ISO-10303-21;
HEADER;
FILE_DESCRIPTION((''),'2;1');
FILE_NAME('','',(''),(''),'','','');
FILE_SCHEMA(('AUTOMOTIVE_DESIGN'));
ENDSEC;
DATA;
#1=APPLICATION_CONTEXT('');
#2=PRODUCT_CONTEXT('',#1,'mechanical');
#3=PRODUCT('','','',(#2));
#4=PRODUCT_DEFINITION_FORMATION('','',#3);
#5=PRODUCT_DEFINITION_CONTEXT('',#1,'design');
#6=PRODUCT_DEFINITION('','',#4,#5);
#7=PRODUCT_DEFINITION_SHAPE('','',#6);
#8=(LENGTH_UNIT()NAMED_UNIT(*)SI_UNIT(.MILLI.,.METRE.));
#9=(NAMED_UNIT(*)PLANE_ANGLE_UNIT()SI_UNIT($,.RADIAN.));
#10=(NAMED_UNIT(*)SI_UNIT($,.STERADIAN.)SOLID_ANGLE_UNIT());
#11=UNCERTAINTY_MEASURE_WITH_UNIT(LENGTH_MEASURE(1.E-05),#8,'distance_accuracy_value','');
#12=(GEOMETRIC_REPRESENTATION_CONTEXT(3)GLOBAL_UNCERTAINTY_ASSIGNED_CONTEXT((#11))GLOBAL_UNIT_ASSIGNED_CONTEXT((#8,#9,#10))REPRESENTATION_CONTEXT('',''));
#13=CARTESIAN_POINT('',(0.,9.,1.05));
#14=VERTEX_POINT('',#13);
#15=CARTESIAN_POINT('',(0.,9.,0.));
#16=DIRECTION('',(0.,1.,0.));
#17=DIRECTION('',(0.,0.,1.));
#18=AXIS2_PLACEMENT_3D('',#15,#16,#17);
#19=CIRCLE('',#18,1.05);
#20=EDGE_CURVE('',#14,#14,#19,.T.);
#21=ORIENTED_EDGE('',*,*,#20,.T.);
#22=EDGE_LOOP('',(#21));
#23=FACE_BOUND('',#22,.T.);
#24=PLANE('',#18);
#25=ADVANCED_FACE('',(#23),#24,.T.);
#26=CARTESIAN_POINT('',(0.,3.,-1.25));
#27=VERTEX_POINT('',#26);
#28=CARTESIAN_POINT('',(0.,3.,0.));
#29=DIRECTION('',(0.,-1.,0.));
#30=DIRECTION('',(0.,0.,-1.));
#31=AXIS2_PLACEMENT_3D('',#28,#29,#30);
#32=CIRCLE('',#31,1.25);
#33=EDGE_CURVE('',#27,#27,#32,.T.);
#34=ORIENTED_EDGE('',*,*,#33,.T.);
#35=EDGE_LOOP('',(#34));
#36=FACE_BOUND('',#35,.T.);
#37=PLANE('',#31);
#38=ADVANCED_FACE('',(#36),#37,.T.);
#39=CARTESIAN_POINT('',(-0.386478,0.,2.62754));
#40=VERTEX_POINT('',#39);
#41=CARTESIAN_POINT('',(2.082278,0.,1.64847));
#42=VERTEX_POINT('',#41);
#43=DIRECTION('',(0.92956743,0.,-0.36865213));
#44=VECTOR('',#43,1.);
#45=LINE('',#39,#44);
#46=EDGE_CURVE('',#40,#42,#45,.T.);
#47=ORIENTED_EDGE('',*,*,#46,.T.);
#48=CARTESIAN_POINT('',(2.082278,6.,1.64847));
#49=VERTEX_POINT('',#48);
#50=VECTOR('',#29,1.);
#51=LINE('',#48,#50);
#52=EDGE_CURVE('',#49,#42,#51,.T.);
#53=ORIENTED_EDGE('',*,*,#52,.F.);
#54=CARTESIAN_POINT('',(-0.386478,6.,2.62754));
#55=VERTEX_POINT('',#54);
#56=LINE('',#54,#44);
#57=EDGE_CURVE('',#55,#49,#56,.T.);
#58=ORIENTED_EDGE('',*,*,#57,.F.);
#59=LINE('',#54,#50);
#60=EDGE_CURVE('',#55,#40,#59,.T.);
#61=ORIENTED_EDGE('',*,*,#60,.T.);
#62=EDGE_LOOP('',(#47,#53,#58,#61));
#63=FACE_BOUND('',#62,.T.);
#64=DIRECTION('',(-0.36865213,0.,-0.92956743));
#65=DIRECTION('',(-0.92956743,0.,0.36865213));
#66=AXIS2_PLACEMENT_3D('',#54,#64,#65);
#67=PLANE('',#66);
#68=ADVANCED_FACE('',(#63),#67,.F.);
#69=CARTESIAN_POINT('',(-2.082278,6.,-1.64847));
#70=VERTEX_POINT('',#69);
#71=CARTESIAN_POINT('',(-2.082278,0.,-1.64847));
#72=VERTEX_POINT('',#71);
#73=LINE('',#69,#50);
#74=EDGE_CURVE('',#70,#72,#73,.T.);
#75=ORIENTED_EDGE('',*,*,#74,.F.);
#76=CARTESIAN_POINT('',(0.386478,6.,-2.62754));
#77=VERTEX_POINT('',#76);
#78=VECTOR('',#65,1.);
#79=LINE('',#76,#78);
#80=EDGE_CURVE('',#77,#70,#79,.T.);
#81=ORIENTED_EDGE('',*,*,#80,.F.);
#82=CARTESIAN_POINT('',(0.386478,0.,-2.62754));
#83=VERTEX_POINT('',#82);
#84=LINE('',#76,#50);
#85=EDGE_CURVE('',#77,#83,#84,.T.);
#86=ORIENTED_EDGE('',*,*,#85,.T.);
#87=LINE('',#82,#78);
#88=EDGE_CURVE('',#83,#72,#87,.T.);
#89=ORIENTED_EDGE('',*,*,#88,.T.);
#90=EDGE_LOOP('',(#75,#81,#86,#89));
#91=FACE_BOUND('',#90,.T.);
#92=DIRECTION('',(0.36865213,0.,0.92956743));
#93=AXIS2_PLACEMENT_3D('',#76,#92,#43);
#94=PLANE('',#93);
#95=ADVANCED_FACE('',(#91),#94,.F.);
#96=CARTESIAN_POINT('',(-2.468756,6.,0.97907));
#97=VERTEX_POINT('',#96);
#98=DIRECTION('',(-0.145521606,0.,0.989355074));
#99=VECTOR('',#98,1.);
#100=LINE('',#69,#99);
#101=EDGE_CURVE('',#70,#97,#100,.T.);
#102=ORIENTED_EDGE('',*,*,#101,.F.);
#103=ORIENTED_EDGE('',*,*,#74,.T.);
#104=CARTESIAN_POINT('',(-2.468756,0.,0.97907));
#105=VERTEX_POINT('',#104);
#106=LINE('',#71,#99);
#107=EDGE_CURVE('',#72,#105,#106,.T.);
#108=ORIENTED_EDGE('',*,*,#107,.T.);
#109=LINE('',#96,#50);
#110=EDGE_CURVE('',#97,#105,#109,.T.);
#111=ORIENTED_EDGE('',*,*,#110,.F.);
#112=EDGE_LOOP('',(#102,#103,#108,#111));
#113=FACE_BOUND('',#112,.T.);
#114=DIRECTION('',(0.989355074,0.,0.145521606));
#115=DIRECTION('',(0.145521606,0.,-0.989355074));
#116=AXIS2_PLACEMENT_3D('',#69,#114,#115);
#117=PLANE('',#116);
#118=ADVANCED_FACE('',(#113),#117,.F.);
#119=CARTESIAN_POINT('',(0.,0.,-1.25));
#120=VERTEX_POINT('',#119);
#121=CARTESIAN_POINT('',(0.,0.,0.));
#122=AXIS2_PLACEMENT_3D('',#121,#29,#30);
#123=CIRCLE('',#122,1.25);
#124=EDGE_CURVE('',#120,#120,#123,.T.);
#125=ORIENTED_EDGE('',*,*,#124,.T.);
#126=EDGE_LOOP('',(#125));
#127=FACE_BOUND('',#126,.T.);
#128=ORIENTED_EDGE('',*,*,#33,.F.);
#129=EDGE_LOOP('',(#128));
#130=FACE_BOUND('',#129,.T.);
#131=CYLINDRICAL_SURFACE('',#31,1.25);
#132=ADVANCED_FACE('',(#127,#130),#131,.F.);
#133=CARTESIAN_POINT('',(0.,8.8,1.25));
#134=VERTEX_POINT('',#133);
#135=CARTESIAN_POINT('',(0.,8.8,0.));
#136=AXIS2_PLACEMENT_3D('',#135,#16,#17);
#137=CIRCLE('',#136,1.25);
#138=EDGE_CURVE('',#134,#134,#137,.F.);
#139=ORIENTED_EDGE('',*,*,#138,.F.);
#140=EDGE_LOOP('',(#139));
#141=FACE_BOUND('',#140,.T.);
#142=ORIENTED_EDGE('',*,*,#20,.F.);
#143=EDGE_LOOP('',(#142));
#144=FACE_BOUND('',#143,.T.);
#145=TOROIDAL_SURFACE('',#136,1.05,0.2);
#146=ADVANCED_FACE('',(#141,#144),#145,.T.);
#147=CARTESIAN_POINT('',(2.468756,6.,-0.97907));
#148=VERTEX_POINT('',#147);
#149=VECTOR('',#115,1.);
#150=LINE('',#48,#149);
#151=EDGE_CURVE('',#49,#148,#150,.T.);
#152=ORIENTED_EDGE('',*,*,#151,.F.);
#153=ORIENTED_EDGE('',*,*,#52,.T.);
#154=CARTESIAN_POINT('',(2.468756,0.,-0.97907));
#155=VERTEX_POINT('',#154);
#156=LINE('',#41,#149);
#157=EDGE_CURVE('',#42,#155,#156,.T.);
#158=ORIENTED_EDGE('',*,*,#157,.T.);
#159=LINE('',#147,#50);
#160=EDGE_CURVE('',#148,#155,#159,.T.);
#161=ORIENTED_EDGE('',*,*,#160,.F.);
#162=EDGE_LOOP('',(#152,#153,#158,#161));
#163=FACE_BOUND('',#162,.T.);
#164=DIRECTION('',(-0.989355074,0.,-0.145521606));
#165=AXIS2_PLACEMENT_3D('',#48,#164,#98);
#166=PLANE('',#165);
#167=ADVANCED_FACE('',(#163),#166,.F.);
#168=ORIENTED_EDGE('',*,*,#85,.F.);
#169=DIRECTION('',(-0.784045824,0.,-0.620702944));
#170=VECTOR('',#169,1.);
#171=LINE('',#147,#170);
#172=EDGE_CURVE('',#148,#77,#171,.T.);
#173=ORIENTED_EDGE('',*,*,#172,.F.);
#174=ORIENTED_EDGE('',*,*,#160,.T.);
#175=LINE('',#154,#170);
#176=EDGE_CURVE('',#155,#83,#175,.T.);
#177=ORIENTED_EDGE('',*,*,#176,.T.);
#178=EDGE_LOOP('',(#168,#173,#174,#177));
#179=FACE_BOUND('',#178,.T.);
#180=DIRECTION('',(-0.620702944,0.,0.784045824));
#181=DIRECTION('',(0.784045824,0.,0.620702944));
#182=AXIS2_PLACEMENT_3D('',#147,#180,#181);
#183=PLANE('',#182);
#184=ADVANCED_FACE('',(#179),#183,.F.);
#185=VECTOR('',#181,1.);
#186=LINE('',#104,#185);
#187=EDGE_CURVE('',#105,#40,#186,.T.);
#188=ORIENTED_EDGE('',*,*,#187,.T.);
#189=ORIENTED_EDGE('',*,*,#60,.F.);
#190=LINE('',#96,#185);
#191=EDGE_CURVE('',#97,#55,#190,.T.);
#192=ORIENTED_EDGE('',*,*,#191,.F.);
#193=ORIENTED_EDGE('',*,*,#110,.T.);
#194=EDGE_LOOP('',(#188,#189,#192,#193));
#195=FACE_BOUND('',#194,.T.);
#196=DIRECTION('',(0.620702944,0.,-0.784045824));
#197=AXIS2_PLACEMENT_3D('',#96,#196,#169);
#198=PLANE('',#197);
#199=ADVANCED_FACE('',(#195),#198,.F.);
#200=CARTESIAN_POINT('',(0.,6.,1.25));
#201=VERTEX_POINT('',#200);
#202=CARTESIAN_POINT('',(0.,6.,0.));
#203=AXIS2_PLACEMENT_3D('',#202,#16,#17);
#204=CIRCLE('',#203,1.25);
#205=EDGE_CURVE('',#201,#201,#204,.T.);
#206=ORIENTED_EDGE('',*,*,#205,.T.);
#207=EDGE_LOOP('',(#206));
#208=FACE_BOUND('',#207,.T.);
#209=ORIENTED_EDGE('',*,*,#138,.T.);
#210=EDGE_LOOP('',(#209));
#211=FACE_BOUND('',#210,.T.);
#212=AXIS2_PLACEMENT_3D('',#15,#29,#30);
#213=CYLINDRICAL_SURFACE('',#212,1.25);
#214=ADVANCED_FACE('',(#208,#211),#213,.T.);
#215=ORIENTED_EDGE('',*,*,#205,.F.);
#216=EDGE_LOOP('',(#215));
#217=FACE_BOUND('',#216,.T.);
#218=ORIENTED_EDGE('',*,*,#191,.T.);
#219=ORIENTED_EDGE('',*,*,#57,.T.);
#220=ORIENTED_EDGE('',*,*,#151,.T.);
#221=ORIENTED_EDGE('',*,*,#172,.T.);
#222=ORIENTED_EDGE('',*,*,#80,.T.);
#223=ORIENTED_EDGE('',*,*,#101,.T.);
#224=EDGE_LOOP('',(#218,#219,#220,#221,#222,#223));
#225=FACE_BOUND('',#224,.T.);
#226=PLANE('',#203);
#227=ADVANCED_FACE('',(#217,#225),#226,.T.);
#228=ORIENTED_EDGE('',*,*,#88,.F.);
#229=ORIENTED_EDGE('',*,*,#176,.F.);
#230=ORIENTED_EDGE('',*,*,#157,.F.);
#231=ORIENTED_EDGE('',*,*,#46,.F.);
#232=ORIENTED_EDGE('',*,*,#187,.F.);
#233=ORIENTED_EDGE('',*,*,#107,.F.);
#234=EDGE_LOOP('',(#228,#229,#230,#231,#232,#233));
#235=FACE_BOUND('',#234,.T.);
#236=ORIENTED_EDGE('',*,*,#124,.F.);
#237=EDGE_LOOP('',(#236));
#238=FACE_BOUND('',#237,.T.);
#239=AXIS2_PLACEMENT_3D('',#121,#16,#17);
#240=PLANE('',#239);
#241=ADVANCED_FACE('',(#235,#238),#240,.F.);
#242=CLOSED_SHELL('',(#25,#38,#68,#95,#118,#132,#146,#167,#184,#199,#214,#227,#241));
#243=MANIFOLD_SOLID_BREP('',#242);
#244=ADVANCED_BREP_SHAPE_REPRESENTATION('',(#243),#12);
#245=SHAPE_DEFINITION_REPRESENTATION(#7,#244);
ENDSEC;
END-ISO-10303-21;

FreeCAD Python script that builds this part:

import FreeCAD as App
import Part
import Sketcher


def edges_at(feature, points):
    """Names of the edges that pass closest to the given points."""
    edges = feature.Shape.Edges
    near = lambda p: min(range(len(edges)), key=lambda i: edges[i].distToShape(Part.Vertex(*p))[0])
    return sorted({f"Edge{near(p) + 1}" for p in points})

doc = App.newDocument("Part")
body = doc.addObject("PartDesign::Body", "Body")

# Sketch on XZ plane
sketch1 = body.newObject("Sketcher::SketchObject", "Sketch")
sketch1.AttachmentSupport = (doc.getObject("XZ_Plane"), [""])
sketch1.MapMode = "FlatFace"
sketch1.addGeometry([
    Part.LineSegment(App.Vector(2.1, 1.6, 0), App.Vector(2.5, -1, 0)),  # 0
    Part.LineSegment(App.Vector(2.5, -1, 0), App.Vector(0.4, -2.6, 0)),  # 1
    Part.LineSegment(App.Vector(0.4, -2.6, 0), App.Vector(-2.1, -1.6, 0)),  # 2
    Part.LineSegment(App.Vector(-2.1, -1.6, 0), App.Vector(-2.5, 1, 0)),  # 3
    Part.LineSegment(App.Vector(-2.5, 1, 0), App.Vector(-0.4, 2.6, 0)),  # 4
    Part.LineSegment(App.Vector(-0.4, 2.6, 0), App.Vector(2.1, 1.6, 0)),  # 5
], False)
sketch1.addConstraint([
    Sketcher.Constraint("Coincident", 0, 2, 1, 1),
    Sketcher.Constraint("Coincident", 1, 2, 2, 1),
    Sketcher.Constraint("Coincident", 2, 2, 3, 1),
    Sketcher.Constraint("Coincident", 3, 2, 4, 1),
    Sketcher.Constraint("Coincident", 4, 2, 5, 1),
    Sketcher.Constraint("Coincident", 5, 2, 0, 1),
    Sketcher.Constraint("Symmetric", 0, 2, 3, 2, -1, 1),
    Sketcher.Constraint("Symmetric", 1, 2, 4, 2, -1, 1),
    Sketcher.Constraint("Symmetric", 2, 2, 5, 2, -1, 1),
    Sketcher.Constraint("Equal", 0, 1),
    Sketcher.Constraint("Equal", 1, 2),
    Sketcher.Constraint("DistanceY", 2, 2, 0, 2, 0.669399),
    Sketcher.Constraint("DistanceX", 2, 2, 4, 2, 1.6958),
    Sketcher.Constraint("Distance", 0, 2.655811),
    Sketcher.Constraint("DistanceY", 0, 2, -1, 1, 0.97907),
])
pad1 = body.newObject("PartDesign::Pad", "Pad")
pad1.Profile = sketch1
pad1.Length = 6
pad1.Reversed = True

# Sketch on XZ plane
sketch2 = body.newObject("Sketcher::SketchObject", "Sketch001")
sketch2.AttachmentSupport = (doc.getObject("XZ_Plane"), [""])
sketch2.MapMode = "FlatFace"
sketch2.AttachmentOffset = App.Placement(App.Vector(0, 0, -6), App.Rotation())
sketch2.addGeometry(Part.Circle(App.Vector(0, 0, 0), App.Vector(0, 0, 1), 1.2), False)
sketch2.addConstraint([
    Sketcher.Constraint("Coincident", 0, 3, -1, 1),
    Sketcher.Constraint("Diameter", 0, 2.5),
])
pad2 = body.newObject("PartDesign::Pad", "Pad001")
pad2.Profile = sketch2
pad2.Length = 3
pad2.Reversed = True
doc.recompute()

fillet = body.newObject("PartDesign::Fillet", "Fillet")
fillet.Base = (pad2, edges_at(pad2, [(0, 9, -1.25)]))
fillet.Radius = 0.2

# Sketch on XZ plane
sketch3 = body.newObject("Sketcher::SketchObject", "Sketch002")
sketch3.AttachmentSupport = (doc.getObject("XZ_Plane"), [""])
sketch3.MapMode = "FlatFace"
sketch3.addGeometry(Part.Circle(App.Vector(0, 0, 0), App.Vector(0, 0, 1), 1.2), False)
sketch3.addConstraint([
    Sketcher.Constraint("Coincident", 0, 3, -1, 1),
    Sketcher.Constraint("Diameter", 0, 2.5),
])
pocket1 = body.newObject("PartDesign::Pocket", "Pocket")
pocket1.Profile = sketch3
pocket1.Length = 3

doc.recompute()
